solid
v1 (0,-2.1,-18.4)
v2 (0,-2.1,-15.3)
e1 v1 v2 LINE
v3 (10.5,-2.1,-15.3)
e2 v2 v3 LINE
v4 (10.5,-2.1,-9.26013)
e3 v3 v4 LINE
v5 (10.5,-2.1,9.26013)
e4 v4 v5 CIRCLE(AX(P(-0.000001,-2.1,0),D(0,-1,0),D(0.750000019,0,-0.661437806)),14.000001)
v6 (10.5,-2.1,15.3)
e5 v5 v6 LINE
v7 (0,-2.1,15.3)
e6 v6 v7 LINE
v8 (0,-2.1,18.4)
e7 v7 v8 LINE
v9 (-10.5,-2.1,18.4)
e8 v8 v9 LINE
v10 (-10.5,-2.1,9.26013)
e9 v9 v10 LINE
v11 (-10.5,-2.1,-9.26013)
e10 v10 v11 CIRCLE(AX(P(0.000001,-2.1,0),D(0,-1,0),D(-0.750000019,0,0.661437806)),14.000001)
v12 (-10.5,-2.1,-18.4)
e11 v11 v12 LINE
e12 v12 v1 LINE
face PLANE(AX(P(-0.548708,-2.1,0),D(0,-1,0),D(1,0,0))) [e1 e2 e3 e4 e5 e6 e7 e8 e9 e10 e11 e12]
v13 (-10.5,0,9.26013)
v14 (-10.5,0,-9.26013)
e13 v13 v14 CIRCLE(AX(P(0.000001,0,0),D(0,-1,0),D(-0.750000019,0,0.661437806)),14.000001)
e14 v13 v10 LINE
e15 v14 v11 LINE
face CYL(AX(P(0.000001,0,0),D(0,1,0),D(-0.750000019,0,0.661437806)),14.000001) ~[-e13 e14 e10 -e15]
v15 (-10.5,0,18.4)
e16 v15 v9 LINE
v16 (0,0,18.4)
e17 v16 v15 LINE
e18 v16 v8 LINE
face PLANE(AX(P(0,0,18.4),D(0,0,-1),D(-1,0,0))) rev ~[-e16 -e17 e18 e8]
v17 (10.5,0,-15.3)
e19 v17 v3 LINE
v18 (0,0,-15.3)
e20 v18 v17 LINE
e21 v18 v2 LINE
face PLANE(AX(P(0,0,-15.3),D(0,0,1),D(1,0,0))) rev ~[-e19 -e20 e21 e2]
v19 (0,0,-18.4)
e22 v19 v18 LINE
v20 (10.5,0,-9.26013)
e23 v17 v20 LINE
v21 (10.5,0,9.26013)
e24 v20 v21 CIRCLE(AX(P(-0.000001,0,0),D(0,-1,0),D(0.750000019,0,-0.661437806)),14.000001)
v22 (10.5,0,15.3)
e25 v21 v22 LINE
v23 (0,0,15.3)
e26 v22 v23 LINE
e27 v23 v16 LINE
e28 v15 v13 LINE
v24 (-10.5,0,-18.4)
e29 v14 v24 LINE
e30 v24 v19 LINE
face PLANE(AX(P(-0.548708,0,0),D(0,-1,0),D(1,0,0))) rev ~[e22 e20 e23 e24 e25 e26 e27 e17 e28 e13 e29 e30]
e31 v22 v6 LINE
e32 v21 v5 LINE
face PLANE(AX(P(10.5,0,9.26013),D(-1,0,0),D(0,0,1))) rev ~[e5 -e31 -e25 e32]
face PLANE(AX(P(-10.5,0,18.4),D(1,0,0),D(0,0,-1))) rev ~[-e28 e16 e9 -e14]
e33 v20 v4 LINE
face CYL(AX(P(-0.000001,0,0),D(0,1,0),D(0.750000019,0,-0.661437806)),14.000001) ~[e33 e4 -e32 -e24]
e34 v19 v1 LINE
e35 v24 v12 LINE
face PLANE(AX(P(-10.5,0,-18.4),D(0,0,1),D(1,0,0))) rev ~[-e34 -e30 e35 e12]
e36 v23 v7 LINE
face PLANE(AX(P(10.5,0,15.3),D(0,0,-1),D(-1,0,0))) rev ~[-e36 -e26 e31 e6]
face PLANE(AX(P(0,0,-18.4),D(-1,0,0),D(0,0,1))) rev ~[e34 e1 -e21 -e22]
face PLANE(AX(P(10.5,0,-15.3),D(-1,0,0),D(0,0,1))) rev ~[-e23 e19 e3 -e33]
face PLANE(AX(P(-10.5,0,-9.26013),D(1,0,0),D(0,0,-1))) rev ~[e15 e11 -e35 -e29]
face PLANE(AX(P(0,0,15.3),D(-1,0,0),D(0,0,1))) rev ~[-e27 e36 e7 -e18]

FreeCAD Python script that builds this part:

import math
import FreeCAD as App
import Part
import Sketcher
from FreeCAD import Vector

doc = App.newDocument("Part")
body = doc.addObject("PartDesign::Body", "Body")

sketch1 = body.newObject("Sketcher::SketchObject", "Sketch")
sketch1.AttachmentSupport = (doc.getObject("XZ_Plane"), [""])
sketch1.MapMode = "FlatFace"
sketch1.addGeometry(Part.LineSegment(Vector(-10.5, 18.4, 0), Vector(-10.5, 9.3, 0)), False)
sketch1.addGeometry(Part.ArcOfCircle(Part.Circle(Vector(0, 0, 0), Vector(0, 0, 1), 14), math.radians(139), math.radians(221)), False)
sketch1.addGeometry(Part.LineSegment(Vector(-10.5, -9.3, 0), Vector(-10.5, -18.4, 0)), False)
sketch1.addGeometry(Part.LineSegment(Vector(-10.5, -18.4, 0), Vector(0, -18.4, 0)), False)
sketch1.addGeometry(Part.LineSegment(Vector(0, -18.4, 0), Vector(0, -15.3, 0)), False)
sketch1.addGeometry(Part.LineSegment(Vector(0, -15.3, 0), Vector(10.5, -15.3, 0)), False)
sketch1.addGeometry(Part.LineSegment(Vector(10.5, -15.3, 0), Vector(10.5, -9.3, 0)), False)
sketch1.addGeometry(Part.ArcOfCircle(Part.Circle(Vector(0, 0, 0), Vector(0, 0, 1), 14), math.radians(-41), math.radians(41)), False)
sketch1.addGeometry(Part.LineSegment(Vector(10.5, 9.3, 0), Vector(10.5, 15.3, 0)), False)
sketch1.addGeometry(Part.LineSegment(Vector(10.5, 15.3, 0), Vector(0, 15.3, 0)), False)
sketch1.addGeometry(Part.LineSegment(Vector(0, 15.3, 0), Vector(0, 18.4, 0)), False)
sketch1.addGeometry(Part.LineSegment(Vector(0, 18.4, 0), Vector(-10.5, 18.4, 0)), False)
sketch1.addConstraint(Sketcher.Constraint("Coincident", 0, 2, 1, 1))
sketch1.addConstraint(Sketcher.Constraint("Coincident", 1, 2, 2, 1))
sketch1.addConstraint(Sketcher.Constraint("Coincident", 2, 2, 3, 1))
sketch1.addConstraint(Sketcher.Constraint("Coincident", 3, 2, 4, 1))
sketch1.addConstraint(Sketcher.Constraint("Coincident", 4, 2, 5, 1))
sketch1.addConstraint(Sketcher.Constraint("Coincident", 5, 2, 6, 1))
sketch1.addConstraint(Sketcher.Constraint("Coincident", 6, 2, 7, 1))
sketch1.addConstraint(Sketcher.Constraint("Coincident", 7, 2, 8, 1))
sketch1.addConstraint(Sketcher.Constraint("Coincident", 8, 2, 9, 1))
sketch1.addConstraint(Sketcher.Constraint("Coincident", 9, 2, 10, 1))
sketch1.addConstraint(Sketcher.Constraint("Coincident", 10, 2, 11, 1))
sketch1.addConstraint(Sketcher.Constraint("Coincident", 11, 2, 0, 1))
sketch1.addConstraint(Sketcher.Constraint("Vertical", 0))
sketch1.addConstraint(Sketcher.Constraint("Vertical", 2))
sketch1.addConstraint(Sketcher.Constraint("Horizontal", 3))
sketch1.addConstraint(Sketcher.Constraint("Vertical", 4))
sketch1.addConstraint(Sketcher.Constraint("Horizontal", 5))
sketch1.addConstraint(Sketcher.Constraint("Vertical", 6))
sketch1.addConstraint(Sketcher.Constraint("Vertical", 8))
sketch1.addConstraint(Sketcher.Constraint("Horizontal", 9))
sketch1.addConstraint(Sketcher.Constraint("Vertical", 10))
sketch1.addConstraint(Sketcher.Constraint("Horizontal", 11))
sketch1.addConstraint(Sketcher.Constraint("Coincident", 1, 3, -1, 1))
sketch1.addConstraint(Sketcher.Constraint("Coincident", 7, 3, -1, 1))
sketch1.addConstraint(Sketcher.Constraint("Equal", 1, 7))
sketch1.addConstraint(Sketcher.Constraint("Symmetric", 4, 2, 9, 2, -1, 1))
sketch1.addConstraint(Sketcher.Constraint("Symmetric", 3, 2, 10, 2, -1))
sketch1.addConstraint(Sketcher.Constraint("Horizontal", 1, 2, 6, 2))
sketch1.addConstraint(Sketcher.Constraint("Horizontal", 0, 2, 7, 2))
sketch1.addConstraint(Sketcher.Constraint("Vertical", 0, 2, 1, 2))
sketch1.addConstraint(Sketcher.Constraint("Radius", 1, 14.000001))
sketch1.addConstraint(Sketcher.Constraint("DistanceX", 3, 1, 3, 2, 10.5))
sketch1.addConstraint(Sketcher.Constraint("DistanceY", 4, 1, 4, 2, 3.1))
sketch1.addConstraint(Sketcher.Constraint("DistanceY", 2, 2, -1, 1, 18.4))
pad1 = body.newObject("PartDesign::Pad", "Pad")
pad1.Profile = sketch1
pad1.Length = 2.1

doc.recompute()
